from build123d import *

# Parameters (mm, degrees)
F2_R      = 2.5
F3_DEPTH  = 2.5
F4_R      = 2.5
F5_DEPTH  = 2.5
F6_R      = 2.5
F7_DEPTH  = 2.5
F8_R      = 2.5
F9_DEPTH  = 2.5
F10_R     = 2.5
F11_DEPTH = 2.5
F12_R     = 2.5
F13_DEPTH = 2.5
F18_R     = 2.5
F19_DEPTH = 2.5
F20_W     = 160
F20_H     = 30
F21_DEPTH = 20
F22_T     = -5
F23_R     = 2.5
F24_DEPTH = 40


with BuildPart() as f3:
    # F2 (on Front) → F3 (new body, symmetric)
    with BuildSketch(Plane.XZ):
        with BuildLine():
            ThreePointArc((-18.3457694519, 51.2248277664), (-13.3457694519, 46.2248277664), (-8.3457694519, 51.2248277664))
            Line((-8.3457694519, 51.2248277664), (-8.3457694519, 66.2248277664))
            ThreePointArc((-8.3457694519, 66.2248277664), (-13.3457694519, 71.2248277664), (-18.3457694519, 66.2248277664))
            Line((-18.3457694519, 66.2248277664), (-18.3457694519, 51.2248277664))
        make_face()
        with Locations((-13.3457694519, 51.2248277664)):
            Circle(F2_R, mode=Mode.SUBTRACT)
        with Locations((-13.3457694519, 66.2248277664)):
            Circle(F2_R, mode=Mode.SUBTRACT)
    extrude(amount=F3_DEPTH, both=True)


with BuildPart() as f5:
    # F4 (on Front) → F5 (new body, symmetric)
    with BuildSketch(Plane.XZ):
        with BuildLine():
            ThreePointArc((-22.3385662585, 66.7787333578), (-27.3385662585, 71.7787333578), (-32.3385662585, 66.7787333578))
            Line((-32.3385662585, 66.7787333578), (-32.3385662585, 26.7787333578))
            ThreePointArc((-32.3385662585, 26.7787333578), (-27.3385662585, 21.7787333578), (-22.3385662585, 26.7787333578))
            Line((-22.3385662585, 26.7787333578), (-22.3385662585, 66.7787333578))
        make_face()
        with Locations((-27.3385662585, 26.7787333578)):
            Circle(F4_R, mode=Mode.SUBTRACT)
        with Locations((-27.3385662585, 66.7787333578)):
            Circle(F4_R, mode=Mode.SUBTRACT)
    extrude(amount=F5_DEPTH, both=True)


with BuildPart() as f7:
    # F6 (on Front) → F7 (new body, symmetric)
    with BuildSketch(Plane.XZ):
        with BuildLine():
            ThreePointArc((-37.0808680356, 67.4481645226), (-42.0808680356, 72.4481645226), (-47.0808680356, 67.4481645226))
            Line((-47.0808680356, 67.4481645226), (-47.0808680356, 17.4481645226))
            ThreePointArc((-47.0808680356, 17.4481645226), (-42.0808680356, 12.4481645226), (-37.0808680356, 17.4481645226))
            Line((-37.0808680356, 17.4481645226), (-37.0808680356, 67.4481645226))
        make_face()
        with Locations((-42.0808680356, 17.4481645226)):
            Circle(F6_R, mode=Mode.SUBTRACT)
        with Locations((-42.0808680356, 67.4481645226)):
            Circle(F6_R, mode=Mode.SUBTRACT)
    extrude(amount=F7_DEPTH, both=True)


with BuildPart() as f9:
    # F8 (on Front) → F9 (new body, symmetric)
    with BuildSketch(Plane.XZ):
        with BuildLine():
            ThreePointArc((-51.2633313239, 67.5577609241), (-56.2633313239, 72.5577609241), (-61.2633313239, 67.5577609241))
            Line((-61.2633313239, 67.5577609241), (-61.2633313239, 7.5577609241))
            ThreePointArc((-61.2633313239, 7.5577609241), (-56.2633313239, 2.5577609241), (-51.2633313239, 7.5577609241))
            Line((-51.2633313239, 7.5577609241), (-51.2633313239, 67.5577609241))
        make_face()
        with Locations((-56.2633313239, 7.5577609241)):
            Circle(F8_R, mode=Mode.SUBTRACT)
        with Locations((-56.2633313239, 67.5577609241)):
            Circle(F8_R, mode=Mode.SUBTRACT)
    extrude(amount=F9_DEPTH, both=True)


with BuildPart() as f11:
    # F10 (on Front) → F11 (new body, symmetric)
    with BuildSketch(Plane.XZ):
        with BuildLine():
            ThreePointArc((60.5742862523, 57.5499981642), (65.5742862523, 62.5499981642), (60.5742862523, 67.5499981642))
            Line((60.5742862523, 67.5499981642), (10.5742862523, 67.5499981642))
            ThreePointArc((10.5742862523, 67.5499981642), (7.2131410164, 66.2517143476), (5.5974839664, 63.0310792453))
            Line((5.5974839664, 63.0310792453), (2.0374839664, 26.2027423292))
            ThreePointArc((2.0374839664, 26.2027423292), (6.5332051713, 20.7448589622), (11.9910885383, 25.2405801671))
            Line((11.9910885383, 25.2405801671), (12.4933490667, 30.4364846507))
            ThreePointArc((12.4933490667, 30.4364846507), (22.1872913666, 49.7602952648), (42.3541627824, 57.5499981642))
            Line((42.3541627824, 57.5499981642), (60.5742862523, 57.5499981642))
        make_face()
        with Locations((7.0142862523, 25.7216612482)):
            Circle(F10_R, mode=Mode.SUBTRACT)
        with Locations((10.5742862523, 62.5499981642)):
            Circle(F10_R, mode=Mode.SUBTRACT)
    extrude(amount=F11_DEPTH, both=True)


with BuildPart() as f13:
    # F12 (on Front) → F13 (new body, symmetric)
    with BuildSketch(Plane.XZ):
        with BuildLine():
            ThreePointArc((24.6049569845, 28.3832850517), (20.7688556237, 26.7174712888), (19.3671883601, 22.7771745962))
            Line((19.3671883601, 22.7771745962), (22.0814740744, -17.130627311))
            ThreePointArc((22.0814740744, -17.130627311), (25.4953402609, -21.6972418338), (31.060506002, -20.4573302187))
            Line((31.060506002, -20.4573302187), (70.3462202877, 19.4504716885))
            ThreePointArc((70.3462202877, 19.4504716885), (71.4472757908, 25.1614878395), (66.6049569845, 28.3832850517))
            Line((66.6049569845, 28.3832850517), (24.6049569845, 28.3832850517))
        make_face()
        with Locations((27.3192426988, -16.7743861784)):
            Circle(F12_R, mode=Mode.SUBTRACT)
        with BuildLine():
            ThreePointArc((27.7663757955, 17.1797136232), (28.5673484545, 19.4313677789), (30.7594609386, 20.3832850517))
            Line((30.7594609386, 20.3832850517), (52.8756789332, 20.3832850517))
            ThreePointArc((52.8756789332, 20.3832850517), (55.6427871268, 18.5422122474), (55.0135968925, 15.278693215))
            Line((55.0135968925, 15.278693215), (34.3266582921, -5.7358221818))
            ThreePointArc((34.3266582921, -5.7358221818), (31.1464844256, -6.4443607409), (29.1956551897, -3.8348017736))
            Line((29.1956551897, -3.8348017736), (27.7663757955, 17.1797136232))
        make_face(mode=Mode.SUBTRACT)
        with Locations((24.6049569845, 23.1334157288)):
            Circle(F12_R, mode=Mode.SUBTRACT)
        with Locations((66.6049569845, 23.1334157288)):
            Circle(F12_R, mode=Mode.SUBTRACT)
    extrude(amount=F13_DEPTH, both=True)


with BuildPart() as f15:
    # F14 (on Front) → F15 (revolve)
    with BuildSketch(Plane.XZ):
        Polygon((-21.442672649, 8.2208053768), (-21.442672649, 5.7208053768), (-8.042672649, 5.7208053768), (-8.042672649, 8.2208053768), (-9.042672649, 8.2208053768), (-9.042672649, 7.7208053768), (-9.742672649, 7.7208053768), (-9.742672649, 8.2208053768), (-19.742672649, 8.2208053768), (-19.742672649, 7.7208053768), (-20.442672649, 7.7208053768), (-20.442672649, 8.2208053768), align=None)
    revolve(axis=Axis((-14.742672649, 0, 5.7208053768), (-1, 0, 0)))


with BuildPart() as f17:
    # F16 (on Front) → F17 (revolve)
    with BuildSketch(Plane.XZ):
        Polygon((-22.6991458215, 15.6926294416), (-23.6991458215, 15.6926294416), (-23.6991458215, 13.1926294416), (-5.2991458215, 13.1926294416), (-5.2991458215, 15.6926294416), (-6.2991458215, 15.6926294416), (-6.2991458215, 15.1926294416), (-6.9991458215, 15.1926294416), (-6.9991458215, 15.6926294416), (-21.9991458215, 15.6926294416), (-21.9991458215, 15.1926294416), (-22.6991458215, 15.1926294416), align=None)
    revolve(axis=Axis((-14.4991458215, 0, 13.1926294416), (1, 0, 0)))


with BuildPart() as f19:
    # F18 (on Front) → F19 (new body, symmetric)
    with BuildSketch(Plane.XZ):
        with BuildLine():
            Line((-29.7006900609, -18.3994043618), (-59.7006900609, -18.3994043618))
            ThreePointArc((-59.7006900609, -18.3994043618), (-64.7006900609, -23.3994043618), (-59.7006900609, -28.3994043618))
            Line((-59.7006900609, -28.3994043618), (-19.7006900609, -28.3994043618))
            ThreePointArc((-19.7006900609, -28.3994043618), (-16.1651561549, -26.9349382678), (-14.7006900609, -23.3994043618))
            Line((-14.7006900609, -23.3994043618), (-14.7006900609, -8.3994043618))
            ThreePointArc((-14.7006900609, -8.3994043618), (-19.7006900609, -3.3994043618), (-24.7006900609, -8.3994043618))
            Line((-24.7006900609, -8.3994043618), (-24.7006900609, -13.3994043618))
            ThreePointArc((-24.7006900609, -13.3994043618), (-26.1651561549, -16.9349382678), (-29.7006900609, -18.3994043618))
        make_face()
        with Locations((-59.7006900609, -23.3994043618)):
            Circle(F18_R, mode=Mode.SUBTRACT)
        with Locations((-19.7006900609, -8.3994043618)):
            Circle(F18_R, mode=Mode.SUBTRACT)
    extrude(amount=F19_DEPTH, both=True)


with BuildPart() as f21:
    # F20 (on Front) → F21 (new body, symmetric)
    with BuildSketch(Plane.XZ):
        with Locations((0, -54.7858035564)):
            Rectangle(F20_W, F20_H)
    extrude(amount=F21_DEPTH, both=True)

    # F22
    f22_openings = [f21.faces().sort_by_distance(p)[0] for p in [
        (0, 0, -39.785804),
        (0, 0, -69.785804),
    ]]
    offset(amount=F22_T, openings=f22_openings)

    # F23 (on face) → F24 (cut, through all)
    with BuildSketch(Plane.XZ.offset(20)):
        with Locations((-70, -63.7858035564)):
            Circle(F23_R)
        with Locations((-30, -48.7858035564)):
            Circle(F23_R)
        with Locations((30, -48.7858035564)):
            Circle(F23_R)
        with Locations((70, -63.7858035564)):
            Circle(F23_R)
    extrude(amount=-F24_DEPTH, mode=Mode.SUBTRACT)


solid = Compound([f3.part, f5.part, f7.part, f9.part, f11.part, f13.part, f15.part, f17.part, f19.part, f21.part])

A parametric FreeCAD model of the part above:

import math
import FreeCAD as App
import Part
import Sketcher
from FreeCAD import Vector


def faces_at(feature, points):
    """Names of the faces that lie closest to the given points."""
    faces = feature.Shape.Faces
    near = lambda p: min(range(len(faces)), key=lambda i: faces[i].distToShape(Part.Vertex(*p))[0])
    return sorted({f"Face{near(p) + 1}" for p in points})


def add_polygon(sketch, points):
    """Adds a closed chain of lines whose ends are joined by coincident constraints."""
    first, n = sketch.GeometryCount, len(points)
    for a, b in zip(points, points[1:] + points[:1]):
        sketch.addGeometry(Part.LineSegment(App.Vector(*a, 0), App.Vector(*b, 0)), False)
    for i in range(n):
        sketch.addConstraint(Sketcher.Constraint("Coincident", first + i, 2, first + (i + 1) % n, 1))

doc = App.newDocument("Part")
body = doc.addObject("PartDesign::Body", "Body")

sketch1 = doc.addObject("Sketcher::SketchObject", "Sketch")
body.addObject(sketch1)
sketch1.AttachmentSupport = (doc.XZ_Plane, [""])
sketch1.MapMode = "FlatFace"
sketch1.addGeometry([
    Part.ArcOfCircle(Part.Circle(Vector(-13.3, 51.2, 0), Vector(0, 0, 1), 5), math.radians(180), math.radians(360)),
    Part.LineSegment(Vector(-8.3, 51.2, 0), Vector(-8.3, 66.2, 0)),
    Part.ArcOfCircle(Part.Circle(Vector(-13.3, 66.2, 0), Vector(0, 0, 1), 5), math.radians(0), math.radians(180)),
    Part.LineSegment(Vector(-18.3, 66.2, 0), Vector(-18.3, 51.2, 0)),
    Part.Circle(Vector(-13.3, 51.2, 0), Vector(0, 0, 1), 2.5),
    Part.Circle(Vector(-13.3, 66.2, 0), Vector(0, 0, 1), 2.5),
], False)
sketch1.addConstraint([
    Sketcher.Constraint("Tangent", 0, 2, 1, 1),
    Sketcher.Constraint("Tangent", 1, 2, 2, 1),
    Sketcher.Constraint("Tangent", 2, 2, 3, 1),
    Sketcher.Constraint("Tangent", 3, 2, 0, 1),
    Sketcher.Constraint("Vertical", 1),
    Sketcher.Constraint("Vertical", 3),
    Sketcher.Constraint("Coincident", 4, 3, 0, 3),
    Sketcher.Constraint("Coincident", 5, 3, 2, 3),
    Sketcher.Constraint("Equal", 4, 5),
    Sketcher.Constraint("Diameter", 4, 5.0),
    Sketcher.Constraint("Radius", 0, 5.0),
    Sketcher.Constraint("DistanceY", 1, 1, 1, 2, 15.0),
    Sketcher.Constraint("DistanceX", 0, 3, -1, 1, 13.345769),
    Sketcher.Constraint("DistanceY", -1, 1, 0, 3, 51.224828),
])
pad1 = doc.addObject("PartDesign::Pad", "Pad")
body.addObject(pad1)
pad1.Profile = sketch1
pad1.Length = 5
pad1.Midplane = True
body2 = doc.addObject("PartDesign::Body", "Body001")

sketch2 = doc.addObject("Sketcher::SketchObject", "Sketch001")
body2.addObject(sketch2)
sketch2.AttachmentSupport = (doc.getObject("XZ_Plane001"), [""])
sketch2.MapMode = "FlatFace"
sketch2.addGeometry([
    Part.ArcOfCircle(Part.Circle(Vector(-27.3, 66.8, 0), Vector(0, 0, 1), 5), math.radians(0), math.radians(180)),
    Part.LineSegment(Vector(-32.3, 66.8, 0), Vector(-32.3, 26.8, 0)),
    Part.ArcOfCircle(Part.Circle(Vector(-27.3, 26.8, 0), Vector(0, 0, 1), 5), math.radians(180), math.radians(360)),
    Part.LineSegment(Vector(-22.3, 26.8, 0), Vector(-22.3, 66.8, 0)),
    Part.Circle(Vector(-27.3, 26.8, 0), Vector(0, 0, 1), 2.5),
    Part.Circle(Vector(-27.3, 66.8, 0), Vector(0, 0, 1), 2.5),
], False)
sketch2.addConstraint([
    Sketcher.Constraint("Tangent", 0, 2, 1, 1),
    Sketcher.Constraint("Tangent", 1, 2, 2, 1),
    Sketcher.Constraint("Tangent", 2, 2, 3, 1),
    Sketcher.Constraint("Tangent", 3, 2, 0, 1),
    Sketcher.Constraint("Vertical", 1),
    Sketcher.Constraint("Vertical", 3),
    Sketcher.Constraint("Coincident", 4, 3, 2, 3),
    Sketcher.Constraint("Coincident", 5, 3, 0, 3),
    Sketcher.Constraint("Equal", 4, 5),
    Sketcher.Constraint("Diameter", 4, 5.0),
    Sketcher.Constraint("Radius", 0, 5.0),
    Sketcher.Constraint("DistanceY", 1, 2, 1, 1, 40.0),
    Sketcher.Constraint("DistanceX", 0, 3, -1, 1, 27.338566),
    Sketcher.Constraint("DistanceY", -1, 1, 0, 3, 66.778733),
])
pad2 = doc.addObject("PartDesign::Pad", "Pad001")
body2.addObject(pad2)
pad2.Profile = sketch2
pad2.Length = 5
pad2.Midplane = True
body3 = doc.addObject("PartDesign::Body", "Body002")

sketch3 = doc.addObject("Sketcher::SketchObject", "Sketch002")
body3.addObject(sketch3)
sketch3.AttachmentSupport = (doc.getObject("XZ_Plane002"), [""])
sketch3.MapMode = "FlatFace"
sketch3.addGeometry([
    Part.ArcOfCircle(Part.Circle(Vector(-42.1, 67.4, 0), Vector(0, 0, 1), 5), math.radians(0), math.radians(180)),
    Part.LineSegment(Vector(-47.1, 67.4, 0), Vector(-47.1, 17.4, 0)),
    Part.ArcOfCircle(Part.Circle(Vector(-42.1, 17.4, 0), Vector(0, 0, 1), 5), math.radians(180), math.radians(360)),
    Part.LineSegment(Vector(-37.1, 17.4, 0), Vector(-37.1, 67.4, 0)),
    Part.Circle(Vector(-42.1, 17.4, 0), Vector(0, 0, 1), 2.5),
    Part.Circle(Vector(-42.1, 67.4, 0), Vector(0, 0, 1), 2.5),
], False)
sketch3.addConstraint([
    Sketcher.Constraint("Tangent", 0, 2, 1, 1),
    Sketcher.Constraint("Tangent", 1, 2, 2, 1),
    Sketcher.Constraint("Tangent", 2, 2, 3, 1),
    Sketcher.Constraint("Tangent", 3, 2, 0, 1),
    Sketcher.Constraint("Vertical", 1),
    Sketcher.Constraint("Vertical", 3),
    Sketcher.Constraint("Coincident", 4, 3, 2, 3),
    Sketcher.Constraint("Coincident", 5, 3, 0, 3),
    Sketcher.Constraint("Equal", 4, 5),
    Sketcher.Constraint("Diameter", 4, 5.0),
    Sketcher.Constraint("Radius", 0, 5.0),
    Sketcher.Constraint("DistanceY", 1, 2, 1, 1, 50.0),
    Sketcher.Constraint("DistanceX", 0, 3, -1, 1, 42.080868),
    Sketcher.Constraint("DistanceY", -1, 1, 0, 3, 67.448165),
])
pad3 = doc.addObject("PartDesign::Pad", "Pad002")
body3.addObject(pad3)
pad3.Profile = sketch3
pad3.Length = 5
pad3.Midplane = True
body4 = doc.addObject("PartDesign::Body", "Body003")

sketch4 = doc.addObject("Sketcher::SketchObject", "Sketch003")
body4.addObject(sketch4)
sketch4.AttachmentSupport = (doc.getObject("XZ_Plane003"), [""])
sketch4.MapMode = "FlatFace"
sketch4.addGeometry([
    Part.ArcOfCircle(Part.Circle(Vector(-56.3, 67.6, 0), Vector(0, 0, 1), 5), math.radians(0), math.radians(180)),
    Part.LineSegment(Vector(-61.3, 67.6, 0), Vector(-61.3, 7.6, 0)),
    Part.ArcOfCircle(Part.Circle(Vector(-56.3, 7.6, 0), Vector(0, 0, 1), 5), math.radians(180), math.radians(360)),
    Part.LineSegment(Vector(-51.3, 7.6, 0), Vector(-51.3, 67.6, 0)),
    Part.Circle(Vector(-56.3, 7.6, 0), Vector(0, 0, 1), 2.5),
    Part.Circle(Vector(-56.3, 67.6, 0), Vector(0, 0, 1), 2.5),
], False)
sketch4.addConstraint([
    Sketcher.Constraint("Tangent", 0, 2, 1, 1),
    Sketcher.Constraint("Tangent", 1, 2, 2, 1),
    Sketcher.Constraint("Tangent", 2, 2, 3, 1),
    Sketcher.Constraint("Tangent", 3, 2, 0, 1),
    Sketcher.Constraint("Vertical", 1),
    Sketcher.Constraint("Vertical", 3),
    Sketcher.Constraint("Coincident", 4, 3, 2, 3),
    Sketcher.Constraint("Coincident", 5, 3, 0, 3),
    Sketcher.Constraint("Equal", 4, 5),
    Sketcher.Constraint("Diameter", 4, 5.0),
    Sketcher.Constraint("Radius", 0, 5.0),
    Sketcher.Constraint("DistanceY", 1, 2, 1, 1, 60.0),
    Sketcher.Constraint("DistanceX", 0, 3, -1, 1, 56.263331),
    Sketcher.Constraint("DistanceY", -1, 1, 0, 3, 67.557761),
])
pad4 = doc.addObject("PartDesign::Pad", "Pad003")
body4.addObject(pad4)
pad4.Profile = sketch4
pad4.Length = 5
pad4.Midplane = True
body5 = doc.addObject("PartDesign::Body", "Body004")

sketch5 = doc.addObject("Sketcher::SketchObject", "Sketch004")
body5.addObject(sketch5)
sketch5.AttachmentSupport = (doc.getObject("XZ_Plane004"), [""])
sketch5.MapMode = "FlatFace"
sketch5.addGeometry([
    Part.ArcOfCircle(Part.Circle(Vector(60.6, 62.5, 0), Vector(0, 0, 1), 5), math.radians(-90), math.radians(90)),
    Part.LineSegment(Vector(60.6, 67.5, 0), Vector(10.6, 67.5, 0)),
    Part.ArcOfCircle(Part.Circle(Vector(10.6, 62.5, 0), Vector(0, 0, 1), 5), math.radians(90), math.radians(174)),
    Part.LineSegment(Vector(5.6, 63, 0), Vector(2, 26.2, 0)),
    Part.ArcOfCircle(Part.Circle(Vector(7, 25.7, 0), Vector(0, 0, 1), 5), math.radians(174), math.radians(354)),
    Part.LineSegment(Vector(12, 25.2, 0), Vector(12.5, 30.4, 0)),
    Part.ArcOfCircle(Part.Circle(Vector(42.4, 27.5, 0), Vector(0, 0, 1), 30), math.radians(90), math.radians(174)),
    Part.LineSegment(Vector(42.4, 57.5, 0), Vector(60.6, 57.5, 0)),
    Part.Circle(Vector(7, 25.7, 0), Vector(0, 0, 1), 2.5),
    Part.Circle(Vector(10.6, 62.5, 0), Vector(0, 0, 1), 2.5),
], False)
sketch5.addConstraint([
    Sketcher.Constraint("Tangent", 0, 2, 1, 1),
    Sketcher.Constraint("Tangent", 1, 2, 2, 1),
    Sketcher.Constraint("Tangent", 2, 2, 3, 1),
    Sketcher.Constraint("Tangent", 3, 2, 4, 1),
    Sketcher.Constraint("Tangent", 4, 2, 5, 1),
    Sketcher.Constraint("Tangent", 5, 2, 6, 2),
    Sketcher.Constraint("Tangent", 6, 1, 7, 1),
    Sketcher.Constraint("Tangent", 7, 2, 0, 1),
    Sketcher.Constraint("Horizontal", 1),
    Sketcher.Constraint("Horizontal", 7),
    Sketcher.Constraint("Coincident", 8, 3, 4, 3),
    Sketcher.Constraint("Coincident", 9, 3, 2, 3),
    Sketcher.Constraint("Equal", 0, 2),
    Sketcher.Constraint("Equal", 2, 4),
    Sketcher.Constraint("Equal", 8, 9),
    Sketcher.Constraint("Parallel", 3, 5),
    Sketcher.Constraint("Diameter", 8, 5.0),
    Sketcher.Constraint("Radius", 0, 5.0),
    Sketcher.Constraint("Radius", 6, 30.0),
    Sketcher.Constraint("DistanceX", 1, 2, 1, 1, 50.0),
    Sketcher.Constraint("Distance", 3, 37.0),
    Sketcher.Constraint("DistanceY", -1, 1, 0, 3, 62.549998),
    Sketcher.Constraint("DistanceX", 4, 3, 2, 3, 3.56),
    Sketcher.Constraint("DistanceX", -1, 1, 4, 2, 11.991089),
])
pad5 = doc.addObject("PartDesign::Pad", "Pad004")
body5.addObject(pad5)
pad5.Profile = sketch5
pad5.Length = 5
pad5.Midplane = True
body6 = doc.addObject("PartDesign::Body", "Body005")

sketch6 = doc.addObject("Sketcher::SketchObject", "Sketch005")
body6.addObject(sketch6)
sketch6.AttachmentSupport = (doc.getObject("XZ_Plane005"), [""])
sketch6.MapMode = "FlatFace"
sketch6.addGeometry([
    Part.ArcOfCircle(Part.Circle(Vector(24.6, 23.1, 0), Vector(0, 0, 1), 5.2), math.radians(90), math.radians(184)),
    Part.LineSegment(Vector(19.4, 22.8, 0), Vector(22.1, -17.1, 0)),
    Part.ArcOfCircle(Part.Circle(Vector(27.3, -16.8, 0), Vector(0, 0, 1), 5.2), math.radians(-176), math.radians(-45)),
    Part.LineSegment(Vector(31.1, -20.5, 0), Vector(70.3, 19.5, 0)),
    Part.ArcOfCircle(Part.Circle(Vector(66.6, 23.1, 0), Vector(0, 0, 1), 5.2), math.radians(-45), math.radians(90)),
    Part.LineSegment(Vector(66.6, 28.4, 0), Vector(24.6, 28.4, 0)),
    Part.Circle(Vector(27.3, -16.8, 0), Vector(0, 0, 1), 2.5),
    Part.LineSegment(Vector(29.2, -3.8, 0), Vector(27.8, 17.2, 0)),
    Part.ArcOfCircle(Part.Circle(Vector(30.8, 17.4, 0), Vector(0, 0, 1), 3), math.radians(90), math.radians(184)),
    Part.LineSegment(Vector(30.8, 20.4, 0), Vector(52.9, 20.4, 0)),
    Part.ArcOfCircle(Part.Circle(Vector(52.9, 17.4, 0), Vector(0, 0, 1), 3), math.radians(-45), math.radians(90)),
    Part.LineSegment(Vector(55, 15.3, 0), Vector(34.3, -5.7, 0)),
    Part.ArcOfCircle(Part.Circle(Vector(32.2, -3.6, 0), Vector(0, 0, 1), 3), math.radians(-176), math.radians(-45)),
    Part.Circle(Vector(24.6, 23.1, 0), Vector(0, 0, 1), 2.5),
    Part.Circle(Vector(66.6, 23.1, 0), Vector(0, 0, 1), 2.5),
], False)
sketch6.addConstraint([
    Sketcher.Constraint("Tangent", 0, 2, 1, 1),
    Sketcher.Constraint("Tangent", 1, 2, 2, 1),
    Sketcher.Constraint("Tangent", 2, 2, 3, 1),
    Sketcher.Constraint("Tangent", 3, 2, 4, 1),
    Sketcher.Constraint("Tangent", 4, 2, 5, 1),
    Sketcher.Constraint("Tangent", 5, 2, 0, 1),
    Sketcher.Constraint("Tangent", 7, 2, 8, 2),
    Sketcher.Constraint("Tangent", 8, 1, 9, 1),
    Sketcher.Constraint("Tangent", 9, 2, 10, 2),
    Sketcher.Constraint("Tangent", 10, 1, 11, 1),
    Sketcher.Constraint("Tangent", 11, 2, 12, 2),
    Sketcher.Constraint("Tangent", 12, 1, 7, 1),
    Sketcher.Constraint("Horizontal", 5),
    Sketcher.Constraint("Horizontal", 9),
    Sketcher.Constraint("Coincident", 6, 3, 2, 3),
    Sketcher.Constraint("Coincident", 13, 3, 0, 3),
    Sketcher.Constraint("Coincident", 14, 3, 4, 3),
    Sketcher.Constraint("Equal", 0, 2),
    Sketcher.Constraint("Equal", 2, 4),
    Sketcher.Constraint("Equal", 8, 10),
    Sketcher.Constraint("Equal", 10, 12),
    Sketcher.Constraint("Equal", 6, 13),
    Sketcher.Constraint("Equal", 13, 14),
    Sketcher.Constraint("Parallel", 1, 7),
    Sketcher.Constraint("Parallel", 3, 11),
    Sketcher.Constraint("Diameter", 6, 5.0),
    Sketcher.Constraint("Radius", 8, 3.0),
    Sketcher.Constraint("DistanceX", 5, 2, 5, 1, 42.0),
    Sketcher.Constraint("Distance", 1, 40.0),
    Sketcher.Constraint("Distance", 3, 56.0),
    Sketcher.Constraint("DistanceY", 10, 3, 4, 2, 11.0),
    Sketcher.Constraint("Radius", 0, 5.249869),
    Sketcher.Constraint("DistanceY", 12, 1, -1, 1, 3.834802),
    Sketcher.Constraint("DistanceY", 2, 2, 12, 3, 16.8261),
    Sketcher.Constraint("DistanceX", -1, 1, 8, 3, 30.759461),
    Sketcher.Constraint("DistanceX", -1, 1, 0, 2, 19.367188),
])
pad6 = doc.addObject("PartDesign::Pad", "Pad005")
body6.addObject(pad6)
pad6.Profile = sketch6
pad6.Length = 5
pad6.Midplane = True
body7 = doc.addObject("PartDesign::Body", "Body006")

sketch7 = doc.addObject("Sketcher::SketchObject", "Sketch006")
body7.addObject(sketch7)
sketch7.AttachmentSupport = (doc.getObject("XZ_Plane006"), [""])
sketch7.MapMode = "FlatFace"
add_polygon(sketch7, [(-21.4, 8.2), (-21.4, 5.7), (-8, 5.7), (-8, 8.2), (-9, 8.2), (-9, 7.7), (-9.7, 7.7), (-9.7, 8.2), (-19.7, 8.2), (-19.7, 7.7), (-20.4, 7.7), (-20.4, 8.2)])
sketch7.addGeometry(Part.LineSegment(Vector(-8, 5.7, 0), Vector(-21.4, 5.7, 0)), True)
sketch7.addConstraint([
    Sketcher.Constraint("Vertical", 0),
    Sketcher.Constraint("Horizontal", 1),
    Sketcher.Constraint("Vertical", 2),
    Sketcher.Constraint("Horizontal", 3),
    Sketcher.Constraint("Vertical", 4),
    Sketcher.Constraint("Horizontal", 5),
    Sketcher.Constraint("Vertical", 6),
    Sketcher.Constraint("Horizontal", 7),
    Sketcher.Constraint("Vertical", 8),
    Sketcher.Constraint("Horizontal", 9),
    Sketcher.Constraint("Vertical", 10),
    Sketcher.Constraint("Horizontal", 11),
    Sketcher.Constraint("Horizontal", 12),
    Sketcher.Constraint("Coincident", 12, 1, 1, 2),
    Sketcher.Constraint("Horizontal", 3, 2, 6, 2),
    Sketcher.Constraint("Horizontal", 5, 2, 8, 2),
    Sketcher.Constraint("Horizontal", 7, 2, 10, 2),
    Sketcher.Constraint("Vertical", 11, 2, 12, 2),
    Sketcher.Constraint("Equal", 5, 9),
    Sketcher.Constraint("Equal", 3, 11),
    Sketcher.Constraint("DistanceX", 3, 2, 3, 1, 1.0),
    Sketcher.Constraint("DistanceX", 7, 2, 7, 1, 10.0),
    Sketcher.Constraint("DistanceX", 1, 1, 1, 2, 13.4),
    Sketcher.Constraint("DistanceY", 0, 2, 0, 1, 2.5),
    Sketcher.Constraint("DistanceY", 4, 2, 4, 1, 0.5),
    Sketcher.Constraint("DistanceX", 0, 2, -1, 1, 21.442673),
    Sketcher.Constraint("DistanceY", -1, 1, 0, 2, 5.720805),
])
revolution = doc.addObject("PartDesign::Revolution", "Revolution")
body7.addObject(revolution)
revolution.Profile = sketch7
revolution.ReferenceAxis = (sketch7, ["Axis0"])
revolution.Angle = 360
body8 = doc.addObject("PartDesign::Body", "Body007")

sketch8 = doc.addObject("Sketcher::SketchObject", "Sketch007")
body8.addObject(sketch8)
sketch8.AttachmentSupport = (doc.getObject("XZ_Plane007"), [""])
sketch8.MapMode = "FlatFace"
add_polygon(sketch8, [(-22.7, 15.7), (-23.7, 15.7), (-23.7, 13.2), (-5.3, 13.2), (-5.3, 15.7), (-6.3, 15.7), (-6.3, 15.2), (-7, 15.2), (-7, 15.7), (-22, 15.7), (-22, 15.2), (-22.7, 15.2)])
sketch8.addGeometry(Part.LineSegment(Vector(-23.7, 13.2, 0), Vector(-5.3, 13.2, 0)), True)
sketch8.addConstraint([
    Sketcher.Constraint("Horizontal", 0),
    Sketcher.Constraint("Vertical", 1),
    Sketcher.Constraint("Horizontal", 2),
    Sketcher.Constraint("Vertical", 3),
    Sketcher.Constraint("Horizontal", 4),
    Sketcher.Constraint("Vertical", 5),
    Sketcher.Constraint("Horizontal", 6),
    Sketcher.Constraint("Vertical", 7),
    Sketcher.Constraint("Horizontal", 8),
    Sketcher.Constraint("Vertical", 9),
    Sketcher.Constraint("Horizontal", 10),
    Sketcher.Constraint("Vertical", 11),
    Sketcher.Constraint("Horizontal", 12),
    Sketcher.Constraint("Coincident", 12, 1, 1, 2),
    Sketcher.Constraint("Horizontal", 0, 2, 3, 2),
    Sketcher.Constraint("Horizontal", 4, 2, 7, 2),
    Sketcher.Constraint("Horizontal", 6, 2, 9, 2),
    Sketcher.Constraint("Vertical", 3, 2, 12, 2),
    Sketcher.Constraint("Equal", 0, 4),
    Sketcher.Constraint("Equal", 6, 10),
    Sketcher.Constraint("DistanceX", 0, 2, 0, 1, 1.0),
    Sketcher.Constraint("DistanceX", 8, 2, 8, 1, 15.0),
    Sketcher.Constraint("DistanceX", 2, 1, 2, 2, 18.4),
    Sketcher.Constraint("DistanceY", 1, 2, 1, 1, 2.5),
    Sketcher.Constraint("DistanceY", 5, 2, 5, 1, 0.5),
    Sketcher.Constraint("DistanceY", -1, 1, 0, 2, 15.692629),
    Sketcher.Constraint("DistanceX", 0, 2, -1, 1, 23.699146),
])
revolution2 = doc.addObject("PartDesign::Revolution", "Revolution001")
body8.addObject(revolution2)
revolution2.Profile = sketch8
revolution2.ReferenceAxis = (sketch8, ["Axis0"])
revolution2.Angle = 360
body9 = doc.addObject("PartDesign::Body", "Body008")

sketch9 = doc.addObject("Sketcher::SketchObject", "Sketch008")
body9.addObject(sketch9)
sketch9.AttachmentSupport = (doc.getObject("XZ_Plane008"), [""])
sketch9.MapMode = "FlatFace"
sketch9.addGeometry([
    Part.LineSegment(Vector(-29.7, -18.4, 0), Vector(-59.7, -18.4, 0)),
    Part.ArcOfCircle(Part.Circle(Vector(-59.7, -23.4, 0), Vector(0, 0, 1), 5), math.radians(90), math.radians(270)),
    Part.LineSegment(Vector(-59.7, -28.4, 0), Vector(-19.7, -28.4, 0)),
    Part.ArcOfCircle(Part.Circle(Vector(-19.7, -23.4, 0), Vector(0, 0, 1), 5), math.radians(-90), math.radians(0)),
    Part.LineSegment(Vector(-14.7, -23.4, 0), Vector(-14.7, -8.4, 0)),
    Part.ArcOfCircle(Part.Circle(Vector(-19.7, -8.4, 0), Vector(0, 0, 1), 5), math.radians(0), math.radians(180)),
    Part.LineSegment(Vector(-24.7, -8.4, 0), Vector(-24.7, -13.4, 0)),
    Part.ArcOfCircle(Part.Circle(Vector(-29.7, -13.4, 0), Vector(0, 0, 1), 5), math.radians(-90), math.radians(0)),
    Part.Circle(Vector(-59.7, -23.4, 0), Vector(0, 0, 1), 2.5),
    Part.Circle(Vector(-19.7, -8.4, 0), Vector(0, 0, 1), 2.5),
], False)
sketch9.addConstraint([
    Sketcher.Constraint("Tangent", 0, 2, 1, 1),
    Sketcher.Constraint("Tangent", 1, 2, 2, 1),
    Sketcher.Constraint("Tangent", 2, 2, 3, 1),
    Sketcher.Constraint("Tangent", 3, 2, 4, 1),
    Sketcher.Constraint("Tangent", 4, 2, 5, 1),
    Sketcher.Constraint("Tangent", 5, 2, 6, 1),
    Sketcher.Constraint("Tangent", 6, 2, 7, 2),
    Sketcher.Constraint("Tangent", 7, 1, 0, 1),
    Sketcher.Constraint("Horizontal", 0),
    Sketcher.Constraint("Horizontal", 2),
    Sketcher.Constraint("Vertical", 4),
    Sketcher.Constraint("Vertical", 6),
    Sketcher.Constraint("Coincident", 8, 3, 1, 3),
    Sketcher.Constraint("Coincident", 9, 3, 5, 3),
    Sketcher.Constraint("Equal", 1, 3),
    Sketcher.Constraint("Equal", 3, 5),
    Sketcher.Constraint("Equal", 5, 7),
    Sketcher.Constraint("Equal", 8, 9),
    Sketcher.Constraint("Diameter", 8, 5.0),
    Sketcher.Constraint("Radius", 1, 5.0),
    Sketcher.Constraint("DistanceX", 0, 2, 0, 1, 30.0),
    Sketcher.Constraint("DistanceY", 4, 1, 4, 2, 15.0),
    Sketcher.Constraint("DistanceX", 1, 3, -1, 1, 59.70069),
    Sketcher.Constraint("DistanceY", 1, 3, -1, 1, 23.399404),
])
pad7 = doc.addObject("PartDesign::Pad", "Pad006")
body9.addObject(pad7)
pad7.Profile = sketch9
pad7.Length = 5
pad7.Midplane = True
body10 = doc.addObject("PartDesign::Body", "Body009")

sketch10 = doc.addObject("Sketcher::SketchObject", "Sketch009")
body10.addObject(sketch10)
sketch10.AttachmentSupport = (doc.getObject("XZ_Plane009"), [""])
sketch10.MapMode = "FlatFace"
add_polygon(sketch10, [(-80, -40), (-80, -70), (80, -70), (80, -40)])
sketch10.addConstraint([
    Sketcher.Constraint("Vertical", 0),
    Sketcher.Constraint("Horizontal", 1),
    Sketcher.Constraint("Vertical", 2),
    Sketcher.Constraint("Horizontal", 3),
    Sketcher.Constraint("DistanceX", 1, 1, 1, 2, 160.0),
    Sketcher.Constraint("DistanceY", 0, 2, 0, 1, 30.0),
    Sketcher.Constraint("DistanceX", 0, 2, -1, 1, 80.0),
    Sketcher.Constraint("DistanceY", 0, 2, -1, 1, 69.785804),
])
pad8 = doc.addObject("PartDesign::Pad", "Pad007")
body10.addObject(pad8)
pad8.Profile = sketch10
pad8.Length = 40
pad8.Midplane = True
doc.recompute()

thickness = doc.addObject("PartDesign::Thickness", "Thickness")
body10.addObject(thickness)
thickness.Base = (pad8, faces_at(pad8, [(0, 0, -39.786), (0, 0, -69.786)]))
thickness.Value = 5
thickness.Reversed = True
thickness.Join = "Arc"

sketch11 = doc.addObject("Sketcher::SketchObject", "Sketch010")
body10.addObject(sketch11)
sketch11.AttachmentSupport = (doc.getObject("XZ_Plane009"), [""])
sketch11.MapMode = "FlatFace"
sketch11.AttachmentOffset = App.Placement(Vector(0, 0, 20), App.Rotation())
sketch11.addGeometry([
    Part.Circle(Vector(-70, -63.8, 0), Vector(0, 0, 1), 2.5),
    Part.Circle(Vector(-30, -48.8, 0), Vector(0, 0, 1), 2.5),
    Part.Circle(Vector(30, -48.8, 0), Vector(0, 0, 1), 2.5),
    Part.Circle(Vector(70, -63.8, 0), Vector(0, 0, 1), 2.5),
], False)
sketch11.addConstraint([
    Sketcher.Constraint("Equal", 0, 1),
    Sketcher.Constraint("Equal", 1, 2),
    Sketcher.Constraint("Equal", 2, 3),
    Sketcher.Constraint("Symmetric", 1, 3, 2, 3, -2),
    Sketcher.Constraint("Symmetric", 0, 3, 3, 3, -2),
    Sketcher.Constraint("Diameter", 0, 5.0),
    Sketcher.Constraint("DistanceX", 0, 3, -1, 1, 70.0),
    Sketcher.Constraint("DistanceX", 1, 3, -1, 1, 30.0),
    Sketcher.Constraint("DistanceY", 0, 3, 1, 3, 15.0),
    Sketcher.Constraint("DistanceY", 0, 3, -1, 1, 63.785804),
])
pocket1 = doc.addObject("PartDesign::Pocket", "Pocket")
body10.addObject(pocket1)
pocket1.Profile = sketch11
pocket1.Type = "ThroughAll"

doc.recompute()
